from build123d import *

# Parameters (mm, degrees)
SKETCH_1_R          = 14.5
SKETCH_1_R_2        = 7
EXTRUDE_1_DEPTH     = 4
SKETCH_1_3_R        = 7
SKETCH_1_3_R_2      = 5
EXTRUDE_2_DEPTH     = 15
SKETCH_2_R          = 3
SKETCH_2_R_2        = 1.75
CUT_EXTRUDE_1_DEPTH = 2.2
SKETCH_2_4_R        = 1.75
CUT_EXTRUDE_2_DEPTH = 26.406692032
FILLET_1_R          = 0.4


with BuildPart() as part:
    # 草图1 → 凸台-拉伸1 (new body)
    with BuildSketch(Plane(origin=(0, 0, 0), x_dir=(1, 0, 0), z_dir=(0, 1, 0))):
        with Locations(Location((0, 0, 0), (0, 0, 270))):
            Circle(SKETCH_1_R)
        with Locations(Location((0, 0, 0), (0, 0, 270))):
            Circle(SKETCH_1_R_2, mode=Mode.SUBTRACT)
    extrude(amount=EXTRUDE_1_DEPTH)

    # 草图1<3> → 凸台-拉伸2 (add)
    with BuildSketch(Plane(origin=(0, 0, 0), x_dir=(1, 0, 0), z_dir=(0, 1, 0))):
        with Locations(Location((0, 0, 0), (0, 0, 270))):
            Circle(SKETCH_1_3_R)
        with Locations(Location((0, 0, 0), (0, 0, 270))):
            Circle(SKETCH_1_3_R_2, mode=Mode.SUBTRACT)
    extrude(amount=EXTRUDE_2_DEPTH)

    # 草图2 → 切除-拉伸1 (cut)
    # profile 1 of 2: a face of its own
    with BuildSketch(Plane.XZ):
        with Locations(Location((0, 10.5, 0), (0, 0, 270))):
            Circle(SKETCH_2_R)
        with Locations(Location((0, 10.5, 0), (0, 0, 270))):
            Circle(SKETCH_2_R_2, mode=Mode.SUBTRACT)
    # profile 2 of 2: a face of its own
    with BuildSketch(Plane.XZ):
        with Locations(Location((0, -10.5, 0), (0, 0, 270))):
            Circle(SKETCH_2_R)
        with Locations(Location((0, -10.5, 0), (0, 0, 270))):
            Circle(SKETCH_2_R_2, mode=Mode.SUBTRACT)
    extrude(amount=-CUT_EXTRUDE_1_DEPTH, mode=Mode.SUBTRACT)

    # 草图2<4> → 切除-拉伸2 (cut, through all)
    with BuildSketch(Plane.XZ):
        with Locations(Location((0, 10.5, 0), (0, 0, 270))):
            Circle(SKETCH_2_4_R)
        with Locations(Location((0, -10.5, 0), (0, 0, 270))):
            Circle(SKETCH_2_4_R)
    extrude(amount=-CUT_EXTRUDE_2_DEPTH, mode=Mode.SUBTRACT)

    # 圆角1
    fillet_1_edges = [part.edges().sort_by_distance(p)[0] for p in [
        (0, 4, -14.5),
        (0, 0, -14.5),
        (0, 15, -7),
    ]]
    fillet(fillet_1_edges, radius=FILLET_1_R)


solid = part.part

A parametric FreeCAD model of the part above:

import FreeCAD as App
import Part
import Sketcher

V = App.Vector
Q = App.Units.Quantity


def edges_at(feature, points):
    """Names of the edges that pass closest to the given points."""
    edges = feature.Shape.Edges
    near = lambda p: min(range(len(edges)), key=lambda i: edges[i].distToShape(Part.Vertex(*p))[0])
    return sorted({f"Edge{near(p) + 1}" for p in points})

doc = App.newDocument("Part")
body = doc.addObject("PartDesign::Body", "Body")

sketch1 = body.newObject("Sketcher::SketchObject", "Sketch")
sketch1.AttachmentSupport = (doc.getObject("XZ_Plane"), [""])
sketch1.MapMode = "FlatFace"
sketch1.addGeometry([
    Part.Circle(V(0, 0, 0), V(0, 0, 1), 14),
    Part.Circle(V(0, 0, 0), V(0, 0, 1), 7),
], False)
sketch1.addConstraint([
    Sketcher.Constraint("Coincident", 0, 3, -1, 1),
    Sketcher.Constraint("Coincident", 1, 3, -1, 1),
    Sketcher.Constraint("Diameter", 0, Q("29 mm")),
    Sketcher.Constraint("Diameter", 1, Q("14 mm")),
])
pad1 = body.newObject("PartDesign::Pad", "Pad")
pad1.Profile = sketch1
pad1.Length = 4
pad1.Reversed = True

sketch2 = body.newObject("Sketcher::SketchObject", "Sketch001")
sketch2.AttachmentSupport = (doc.getObject("XZ_Plane"), [""])
sketch2.MapMode = "FlatFace"
sketch2.addGeometry([
    Part.Circle(V(0, 0, 0), V(0, 0, 1), 7),
    Part.Circle(V(0, 0, 0), V(0, 0, 1), 5),
], False)
sketch2.addConstraint([
    Sketcher.Constraint("Coincident", 0, 3, -1, 1),
    Sketcher.Constraint("Coincident", 1, 3, -1, 1),
    Sketcher.Constraint("Diameter", 0, Q("14 mm")),
    Sketcher.Constraint("Diameter", 1, Q("10 mm")),
])
pad2 = body.newObject("PartDesign::Pad", "Pad001")
pad2.Profile = sketch2
pad2.Length = 15
pad2.Reversed = True

sketch3 = body.newObject("Sketcher::SketchObject", "Sketch002")
sketch3.AttachmentSupport = (doc.getObject("XZ_Plane"), [""])
sketch3.MapMode = "FlatFace"
sketch3.addGeometry([
    Part.Circle(V(0, 10.5, 0), V(0, 0, 1), 3),
    Part.Circle(V(0, 10.5, 0), V(0, 0, 1), 1.8),
    Part.Circle(V(0, -10.5, 0), V(0, 0, 1), 3),
    Part.Circle(V(0, -10.5, 0), V(0, 0, 1), 1.8),
], False)
sketch3.addConstraint([
    Sketcher.Constraint("Coincident", 1, 3, 0, 3),
    Sketcher.Constraint("Coincident", 3, 3, 2, 3),
    Sketcher.Constraint("Equal", 0, 2),
    Sketcher.Constraint("Equal", 1, 3),
    Sketcher.Constraint("Symmetric", 0, 3, 2, 3, -1, 1),
    Sketcher.Constraint("PointOnObject", 0, 3, -2),
    Sketcher.Constraint("Diameter", 0, Q("6 mm")),
    Sketcher.Constraint("Diameter", 1, Q("3.5 mm")),
    Sketcher.Constraint("DistanceY", 2, 3, 0, 3, Q("21 mm")),
])
pocket1 = body.newObject("PartDesign::Pocket", "Pocket")
pocket1.Profile = sketch3
pocket1.Length = 2.2

sketch4 = body.newObject("Sketcher::SketchObject", "Sketch003")
sketch4.AttachmentSupport = (doc.getObject("XZ_Plane"), [""])
sketch4.MapMode = "FlatFace"
sketch4.addGeometry([
    Part.Circle(V(0, 10.5, 0), V(0, 0, 1), 1.8),
    Part.Circle(V(0, -10.5, 0), V(0, 0, 1), 1.8),
], False)
sketch4.addConstraint([
    Sketcher.Constraint("Equal", 0, 1),
    Sketcher.Constraint("Symmetric", 0, 3, 1, 3, -1, 1),
    Sketcher.Constraint("PointOnObject", 0, 3, -2),
    Sketcher.Constraint("Diameter", 0, Q("3.5 mm")),
    Sketcher.Constraint("DistanceY", 1, 3, 0, 3, Q("21 mm")),
])
pocket2 = body.newObject("PartDesign::Pocket", "Pocket001")
pocket2.Profile = sketch4
pocket2.Type = "ThroughAll"
doc.recompute()

fillet = body.newObject("PartDesign::Fillet", "Fillet")
fillet.Base = (pocket2, edges_at(pocket2, [(0, 4, -14.5), (0, 0, -14.5), (0, 15, -7)]))
fillet.Radius = 0.4

doc.recompute()
